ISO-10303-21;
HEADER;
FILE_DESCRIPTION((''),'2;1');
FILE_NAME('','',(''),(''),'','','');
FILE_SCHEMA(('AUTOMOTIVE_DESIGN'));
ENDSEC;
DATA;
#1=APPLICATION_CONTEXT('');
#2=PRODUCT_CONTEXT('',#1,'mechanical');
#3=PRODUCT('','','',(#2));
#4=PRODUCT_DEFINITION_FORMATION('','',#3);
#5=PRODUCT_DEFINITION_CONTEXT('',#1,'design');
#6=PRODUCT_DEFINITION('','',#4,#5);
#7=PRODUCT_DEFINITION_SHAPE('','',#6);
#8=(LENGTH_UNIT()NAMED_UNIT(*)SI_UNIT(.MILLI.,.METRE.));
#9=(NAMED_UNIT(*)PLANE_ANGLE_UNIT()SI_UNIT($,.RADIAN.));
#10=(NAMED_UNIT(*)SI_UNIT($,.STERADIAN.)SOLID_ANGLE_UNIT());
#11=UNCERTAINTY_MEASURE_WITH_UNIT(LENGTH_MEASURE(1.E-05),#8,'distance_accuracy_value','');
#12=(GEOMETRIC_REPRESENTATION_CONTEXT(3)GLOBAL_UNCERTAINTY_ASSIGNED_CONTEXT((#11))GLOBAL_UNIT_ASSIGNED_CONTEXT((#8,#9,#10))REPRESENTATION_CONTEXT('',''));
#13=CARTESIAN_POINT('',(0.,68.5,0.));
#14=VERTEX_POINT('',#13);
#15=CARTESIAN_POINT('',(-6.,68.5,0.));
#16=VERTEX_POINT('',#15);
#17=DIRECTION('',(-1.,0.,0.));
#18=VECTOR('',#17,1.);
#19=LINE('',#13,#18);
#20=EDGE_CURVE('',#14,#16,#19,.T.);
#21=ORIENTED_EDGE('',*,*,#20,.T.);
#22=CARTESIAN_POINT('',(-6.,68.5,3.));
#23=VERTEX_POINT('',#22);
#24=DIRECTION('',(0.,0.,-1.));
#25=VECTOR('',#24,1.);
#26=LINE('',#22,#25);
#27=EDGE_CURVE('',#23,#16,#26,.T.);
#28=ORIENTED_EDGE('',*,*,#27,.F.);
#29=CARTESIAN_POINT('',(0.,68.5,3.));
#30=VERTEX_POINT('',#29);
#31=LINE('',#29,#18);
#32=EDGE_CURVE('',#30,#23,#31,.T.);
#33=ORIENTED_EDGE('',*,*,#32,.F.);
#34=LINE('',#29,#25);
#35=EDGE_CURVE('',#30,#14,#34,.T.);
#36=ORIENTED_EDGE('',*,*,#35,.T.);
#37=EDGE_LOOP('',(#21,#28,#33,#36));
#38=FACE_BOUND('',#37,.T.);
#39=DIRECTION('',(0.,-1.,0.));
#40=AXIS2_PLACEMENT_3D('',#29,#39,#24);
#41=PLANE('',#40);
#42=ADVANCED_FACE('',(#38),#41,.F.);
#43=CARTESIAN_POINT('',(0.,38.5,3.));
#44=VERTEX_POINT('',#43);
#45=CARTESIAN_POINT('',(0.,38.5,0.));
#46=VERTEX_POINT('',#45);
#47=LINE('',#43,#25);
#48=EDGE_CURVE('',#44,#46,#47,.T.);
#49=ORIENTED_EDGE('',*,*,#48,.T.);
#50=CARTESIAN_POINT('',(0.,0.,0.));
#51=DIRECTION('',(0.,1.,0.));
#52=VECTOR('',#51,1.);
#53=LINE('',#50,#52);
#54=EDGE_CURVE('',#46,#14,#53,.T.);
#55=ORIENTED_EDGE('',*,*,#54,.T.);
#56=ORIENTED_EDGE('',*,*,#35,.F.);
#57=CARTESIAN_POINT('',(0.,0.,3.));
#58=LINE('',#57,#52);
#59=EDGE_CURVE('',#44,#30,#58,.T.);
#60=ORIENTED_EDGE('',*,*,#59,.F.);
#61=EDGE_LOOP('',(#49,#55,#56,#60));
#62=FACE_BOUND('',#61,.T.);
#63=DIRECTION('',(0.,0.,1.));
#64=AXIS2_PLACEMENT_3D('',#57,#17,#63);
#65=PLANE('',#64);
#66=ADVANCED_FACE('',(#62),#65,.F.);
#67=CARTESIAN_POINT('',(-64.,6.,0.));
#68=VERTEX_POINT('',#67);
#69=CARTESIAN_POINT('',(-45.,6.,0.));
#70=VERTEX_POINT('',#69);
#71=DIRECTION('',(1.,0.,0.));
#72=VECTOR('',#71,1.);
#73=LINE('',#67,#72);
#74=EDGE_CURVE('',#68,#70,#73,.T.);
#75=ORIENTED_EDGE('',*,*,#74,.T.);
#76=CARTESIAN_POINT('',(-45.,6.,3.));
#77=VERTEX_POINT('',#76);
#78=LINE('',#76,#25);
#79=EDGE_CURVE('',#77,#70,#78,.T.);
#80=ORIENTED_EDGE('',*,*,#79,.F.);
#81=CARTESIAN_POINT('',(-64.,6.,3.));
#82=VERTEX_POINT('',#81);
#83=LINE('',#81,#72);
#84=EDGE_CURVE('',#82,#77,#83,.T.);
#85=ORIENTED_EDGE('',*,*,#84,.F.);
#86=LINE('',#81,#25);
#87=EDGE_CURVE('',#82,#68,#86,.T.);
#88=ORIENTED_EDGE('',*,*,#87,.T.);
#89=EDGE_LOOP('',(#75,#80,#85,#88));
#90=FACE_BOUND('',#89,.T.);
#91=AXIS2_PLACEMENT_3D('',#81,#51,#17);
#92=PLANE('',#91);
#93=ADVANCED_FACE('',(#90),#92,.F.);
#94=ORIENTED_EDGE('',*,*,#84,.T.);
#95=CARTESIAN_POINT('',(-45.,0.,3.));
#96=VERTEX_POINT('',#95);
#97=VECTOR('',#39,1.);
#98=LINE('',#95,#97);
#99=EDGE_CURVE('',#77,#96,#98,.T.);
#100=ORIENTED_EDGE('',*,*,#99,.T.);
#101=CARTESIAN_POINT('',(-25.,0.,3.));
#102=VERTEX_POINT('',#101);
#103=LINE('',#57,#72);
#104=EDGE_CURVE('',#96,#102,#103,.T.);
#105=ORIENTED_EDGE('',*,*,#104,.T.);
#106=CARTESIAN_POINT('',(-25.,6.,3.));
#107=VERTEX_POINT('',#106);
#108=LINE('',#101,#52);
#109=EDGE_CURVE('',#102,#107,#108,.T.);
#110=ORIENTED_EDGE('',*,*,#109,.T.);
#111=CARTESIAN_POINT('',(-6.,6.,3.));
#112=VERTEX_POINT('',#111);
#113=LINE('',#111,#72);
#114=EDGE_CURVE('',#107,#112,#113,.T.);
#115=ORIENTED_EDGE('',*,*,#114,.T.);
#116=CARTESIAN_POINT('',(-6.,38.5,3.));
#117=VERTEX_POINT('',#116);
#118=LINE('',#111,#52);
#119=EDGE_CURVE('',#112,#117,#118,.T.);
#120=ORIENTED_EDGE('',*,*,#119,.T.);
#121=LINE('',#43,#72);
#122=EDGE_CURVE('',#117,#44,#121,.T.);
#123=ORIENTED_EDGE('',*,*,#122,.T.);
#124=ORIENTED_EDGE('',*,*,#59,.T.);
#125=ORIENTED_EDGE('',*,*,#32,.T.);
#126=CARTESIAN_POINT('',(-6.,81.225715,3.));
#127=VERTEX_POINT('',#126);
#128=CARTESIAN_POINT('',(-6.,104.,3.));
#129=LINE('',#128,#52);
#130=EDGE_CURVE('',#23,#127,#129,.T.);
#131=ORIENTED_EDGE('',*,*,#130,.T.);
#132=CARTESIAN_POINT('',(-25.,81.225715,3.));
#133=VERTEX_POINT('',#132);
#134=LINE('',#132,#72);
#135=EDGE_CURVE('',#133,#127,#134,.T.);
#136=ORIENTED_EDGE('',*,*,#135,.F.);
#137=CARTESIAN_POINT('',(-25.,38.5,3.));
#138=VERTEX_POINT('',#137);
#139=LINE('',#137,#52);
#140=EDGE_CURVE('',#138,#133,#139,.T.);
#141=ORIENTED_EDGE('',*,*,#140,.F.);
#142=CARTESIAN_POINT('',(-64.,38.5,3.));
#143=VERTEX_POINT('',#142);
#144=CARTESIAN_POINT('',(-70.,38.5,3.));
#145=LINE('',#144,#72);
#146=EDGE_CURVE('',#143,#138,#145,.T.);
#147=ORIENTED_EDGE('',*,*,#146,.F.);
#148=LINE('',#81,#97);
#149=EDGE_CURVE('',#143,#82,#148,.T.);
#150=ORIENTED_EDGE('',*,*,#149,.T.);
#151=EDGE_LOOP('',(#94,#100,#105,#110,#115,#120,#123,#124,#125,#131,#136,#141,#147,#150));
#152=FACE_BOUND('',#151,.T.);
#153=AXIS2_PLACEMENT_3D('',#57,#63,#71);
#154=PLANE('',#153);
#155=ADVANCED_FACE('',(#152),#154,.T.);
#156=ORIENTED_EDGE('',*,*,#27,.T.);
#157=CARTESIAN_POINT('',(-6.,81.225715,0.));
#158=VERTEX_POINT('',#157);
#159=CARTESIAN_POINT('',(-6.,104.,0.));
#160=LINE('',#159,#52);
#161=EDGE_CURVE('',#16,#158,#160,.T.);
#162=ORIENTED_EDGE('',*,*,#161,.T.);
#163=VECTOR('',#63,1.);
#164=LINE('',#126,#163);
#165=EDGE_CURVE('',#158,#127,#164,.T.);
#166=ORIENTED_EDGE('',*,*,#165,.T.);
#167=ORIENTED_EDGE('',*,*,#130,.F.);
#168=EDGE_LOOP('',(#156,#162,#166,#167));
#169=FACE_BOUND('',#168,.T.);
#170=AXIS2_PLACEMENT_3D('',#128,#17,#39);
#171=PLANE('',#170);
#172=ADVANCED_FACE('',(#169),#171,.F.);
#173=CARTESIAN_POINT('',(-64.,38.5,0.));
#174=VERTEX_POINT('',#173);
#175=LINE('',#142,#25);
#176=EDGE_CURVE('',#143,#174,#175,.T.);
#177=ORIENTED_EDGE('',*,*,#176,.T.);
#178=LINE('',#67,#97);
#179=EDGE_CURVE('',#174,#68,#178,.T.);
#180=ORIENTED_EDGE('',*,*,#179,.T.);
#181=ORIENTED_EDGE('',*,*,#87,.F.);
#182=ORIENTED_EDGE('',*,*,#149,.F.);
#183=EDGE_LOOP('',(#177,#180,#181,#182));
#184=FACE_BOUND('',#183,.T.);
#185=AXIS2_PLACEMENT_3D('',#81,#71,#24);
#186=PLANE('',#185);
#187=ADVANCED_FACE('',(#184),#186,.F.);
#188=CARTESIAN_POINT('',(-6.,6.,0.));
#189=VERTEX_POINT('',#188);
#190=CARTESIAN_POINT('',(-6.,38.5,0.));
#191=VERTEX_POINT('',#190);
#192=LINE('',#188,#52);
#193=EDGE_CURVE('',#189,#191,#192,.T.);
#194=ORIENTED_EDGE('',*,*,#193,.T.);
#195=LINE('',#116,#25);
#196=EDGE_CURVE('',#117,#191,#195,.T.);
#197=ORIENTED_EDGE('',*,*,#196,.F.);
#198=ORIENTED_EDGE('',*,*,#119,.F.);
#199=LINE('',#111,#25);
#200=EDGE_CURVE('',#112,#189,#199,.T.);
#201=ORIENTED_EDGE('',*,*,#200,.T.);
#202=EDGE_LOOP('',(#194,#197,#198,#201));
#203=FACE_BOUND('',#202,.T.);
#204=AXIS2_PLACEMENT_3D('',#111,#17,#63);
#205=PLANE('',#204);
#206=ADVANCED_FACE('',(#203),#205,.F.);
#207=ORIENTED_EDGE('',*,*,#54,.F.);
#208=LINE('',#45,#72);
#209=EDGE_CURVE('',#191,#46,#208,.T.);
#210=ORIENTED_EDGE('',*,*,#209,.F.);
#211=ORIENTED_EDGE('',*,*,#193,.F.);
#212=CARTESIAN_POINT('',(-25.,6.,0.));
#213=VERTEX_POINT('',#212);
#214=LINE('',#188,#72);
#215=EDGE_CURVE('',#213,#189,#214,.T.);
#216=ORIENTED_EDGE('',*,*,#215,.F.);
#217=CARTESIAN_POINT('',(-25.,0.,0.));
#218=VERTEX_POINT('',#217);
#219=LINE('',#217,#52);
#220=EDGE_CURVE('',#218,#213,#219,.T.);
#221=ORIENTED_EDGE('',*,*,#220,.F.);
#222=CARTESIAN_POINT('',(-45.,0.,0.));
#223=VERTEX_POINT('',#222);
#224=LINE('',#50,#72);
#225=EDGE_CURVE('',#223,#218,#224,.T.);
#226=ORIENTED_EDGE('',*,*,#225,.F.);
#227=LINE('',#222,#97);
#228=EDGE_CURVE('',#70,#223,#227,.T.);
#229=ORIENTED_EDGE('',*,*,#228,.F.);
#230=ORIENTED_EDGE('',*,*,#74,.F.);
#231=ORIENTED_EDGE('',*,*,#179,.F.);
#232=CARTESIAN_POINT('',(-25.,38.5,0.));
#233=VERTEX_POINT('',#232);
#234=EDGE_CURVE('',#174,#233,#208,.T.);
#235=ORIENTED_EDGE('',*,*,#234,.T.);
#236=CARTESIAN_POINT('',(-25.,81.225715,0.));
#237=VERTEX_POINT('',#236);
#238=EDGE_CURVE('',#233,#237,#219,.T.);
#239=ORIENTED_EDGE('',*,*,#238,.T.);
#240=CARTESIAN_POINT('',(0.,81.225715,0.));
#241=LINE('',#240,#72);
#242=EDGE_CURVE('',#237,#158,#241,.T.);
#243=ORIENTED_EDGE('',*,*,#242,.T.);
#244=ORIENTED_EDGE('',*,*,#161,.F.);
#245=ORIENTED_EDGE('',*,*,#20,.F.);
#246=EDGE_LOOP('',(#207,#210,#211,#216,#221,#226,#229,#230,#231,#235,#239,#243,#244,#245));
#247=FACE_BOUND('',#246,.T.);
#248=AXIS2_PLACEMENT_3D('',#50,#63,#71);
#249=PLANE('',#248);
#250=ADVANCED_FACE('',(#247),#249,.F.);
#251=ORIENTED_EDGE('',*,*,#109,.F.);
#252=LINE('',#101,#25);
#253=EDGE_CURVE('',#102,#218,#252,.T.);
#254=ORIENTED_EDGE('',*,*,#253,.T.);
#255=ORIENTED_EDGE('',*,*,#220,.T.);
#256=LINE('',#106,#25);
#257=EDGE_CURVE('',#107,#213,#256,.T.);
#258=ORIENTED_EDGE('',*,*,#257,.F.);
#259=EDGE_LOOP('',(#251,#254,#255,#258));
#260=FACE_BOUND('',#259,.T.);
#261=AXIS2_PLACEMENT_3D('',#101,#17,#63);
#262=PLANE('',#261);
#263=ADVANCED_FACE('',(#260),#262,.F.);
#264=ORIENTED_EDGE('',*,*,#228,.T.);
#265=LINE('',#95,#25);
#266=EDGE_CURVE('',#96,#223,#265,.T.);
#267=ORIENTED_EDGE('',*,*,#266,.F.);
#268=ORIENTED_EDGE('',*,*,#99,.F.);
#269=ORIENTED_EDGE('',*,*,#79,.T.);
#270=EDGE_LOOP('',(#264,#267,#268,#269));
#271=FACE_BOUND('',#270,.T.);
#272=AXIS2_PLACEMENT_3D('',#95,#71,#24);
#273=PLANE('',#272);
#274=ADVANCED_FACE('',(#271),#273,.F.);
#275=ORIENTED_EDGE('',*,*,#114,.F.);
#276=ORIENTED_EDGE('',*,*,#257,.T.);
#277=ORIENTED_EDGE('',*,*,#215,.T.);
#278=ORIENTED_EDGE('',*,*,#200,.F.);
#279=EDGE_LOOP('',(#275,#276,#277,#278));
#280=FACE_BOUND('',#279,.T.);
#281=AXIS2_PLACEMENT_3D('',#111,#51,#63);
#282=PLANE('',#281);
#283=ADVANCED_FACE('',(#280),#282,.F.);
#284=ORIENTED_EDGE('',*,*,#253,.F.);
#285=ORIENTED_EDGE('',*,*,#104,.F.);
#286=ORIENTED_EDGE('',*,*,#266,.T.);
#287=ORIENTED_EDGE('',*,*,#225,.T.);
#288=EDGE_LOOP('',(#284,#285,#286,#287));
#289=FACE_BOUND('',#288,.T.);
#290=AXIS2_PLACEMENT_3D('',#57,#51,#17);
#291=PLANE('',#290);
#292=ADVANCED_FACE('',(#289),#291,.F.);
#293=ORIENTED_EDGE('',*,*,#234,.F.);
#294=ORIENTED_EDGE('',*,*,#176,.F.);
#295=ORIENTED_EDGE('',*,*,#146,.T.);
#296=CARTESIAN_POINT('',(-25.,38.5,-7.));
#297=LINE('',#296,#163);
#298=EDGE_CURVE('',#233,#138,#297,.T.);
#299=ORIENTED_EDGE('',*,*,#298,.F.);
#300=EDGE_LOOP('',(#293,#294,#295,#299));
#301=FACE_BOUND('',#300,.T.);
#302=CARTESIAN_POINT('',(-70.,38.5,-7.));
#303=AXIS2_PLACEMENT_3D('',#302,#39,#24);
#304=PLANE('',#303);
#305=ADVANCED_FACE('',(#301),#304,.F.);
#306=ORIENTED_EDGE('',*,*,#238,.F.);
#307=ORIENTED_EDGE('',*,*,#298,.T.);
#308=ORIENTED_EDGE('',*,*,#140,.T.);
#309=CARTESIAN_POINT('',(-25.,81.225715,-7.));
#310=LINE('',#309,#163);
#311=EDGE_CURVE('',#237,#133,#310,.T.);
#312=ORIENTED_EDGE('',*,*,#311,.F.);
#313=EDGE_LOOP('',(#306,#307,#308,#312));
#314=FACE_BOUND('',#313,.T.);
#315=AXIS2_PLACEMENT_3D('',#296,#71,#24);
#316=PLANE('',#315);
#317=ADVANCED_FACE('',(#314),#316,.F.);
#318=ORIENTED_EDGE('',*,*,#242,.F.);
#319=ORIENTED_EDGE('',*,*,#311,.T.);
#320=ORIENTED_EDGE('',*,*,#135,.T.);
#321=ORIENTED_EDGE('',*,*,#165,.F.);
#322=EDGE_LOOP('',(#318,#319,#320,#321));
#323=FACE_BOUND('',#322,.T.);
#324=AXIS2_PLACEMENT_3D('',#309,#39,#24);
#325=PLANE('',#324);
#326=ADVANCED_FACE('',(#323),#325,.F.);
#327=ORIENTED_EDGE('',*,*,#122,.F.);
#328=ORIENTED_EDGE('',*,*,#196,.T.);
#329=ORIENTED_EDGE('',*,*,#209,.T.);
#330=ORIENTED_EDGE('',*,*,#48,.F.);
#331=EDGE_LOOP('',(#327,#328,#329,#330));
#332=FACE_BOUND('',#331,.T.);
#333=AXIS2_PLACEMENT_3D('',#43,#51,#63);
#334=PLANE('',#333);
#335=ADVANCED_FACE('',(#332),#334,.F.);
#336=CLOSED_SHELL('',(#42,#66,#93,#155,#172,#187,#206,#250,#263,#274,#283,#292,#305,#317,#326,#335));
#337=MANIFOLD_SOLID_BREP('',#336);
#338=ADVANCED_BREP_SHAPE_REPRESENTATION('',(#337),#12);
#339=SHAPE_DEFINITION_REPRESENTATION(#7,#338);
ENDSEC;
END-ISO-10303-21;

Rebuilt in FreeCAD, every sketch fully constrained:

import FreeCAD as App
import Part
import Sketcher

V = App.Vector
Q = App.Units.Quantity

doc = App.newDocument("Part")
body = doc.addObject("PartDesign::Body", "Body")

# Sketch on XY plane
sketch1 = body.newObject("Sketcher::SketchObject", "Sketch")
sketch1.AttachmentSupport = (doc.getObject("XY_Plane"), [""])
sketch1.MapMode = "FlatFace"
sketch1.addGeometry(Part.LineSegment(V(-70, 110, 0), V(-70, 0, 0)), False)
sketch1.addGeometry(Part.LineSegment(V(-70, 0, 0), V(0, 0, 0)), False)
sketch1.addGeometry(Part.LineSegment(V(0, 0, 0), V(0, 110, 0)), False)
sketch1.addGeometry(Part.LineSegment(V(0, 110, 0), V(-70, 110, 0)), False)
sketch1.addConstraint(Sketcher.Constraint("Coincident", 0, 2, 1, 1))
sketch1.addConstraint(Sketcher.Constraint("Coincident", 1, 2, 2, 1))
sketch1.addConstraint(Sketcher.Constraint("Coincident", 2, 2, 3, 1))
sketch1.addConstraint(Sketcher.Constraint("Coincident", 3, 2, 0, 1))
sketch1.addConstraint(Sketcher.Constraint("Vertical", 0))
sketch1.addConstraint(Sketcher.Constraint("Horizontal", 1))
sketch1.addConstraint(Sketcher.Constraint("Vertical", 2))
sketch1.addConstraint(Sketcher.Constraint("Horizontal", 3))
sketch1.addConstraint(Sketcher.Constraint("Coincident", 1, 2, -1, 1))
sketch1.addConstraint(Sketcher.Constraint("DistanceX", 1, 1, 1, 2, Q("70 mm")))
sketch1.addConstraint(Sketcher.Constraint("DistanceY", 0, 2, 0, 1, Q("110 mm")))
pad1 = body.newObject("PartDesign::Pad", "Pad")
pad1.Profile = sketch1
pad1.Length = 3

# Sketch on XY plane
sketch2 = body.newObject("Sketcher::SketchObject", "Sketch001")
sketch2.AttachmentSupport = (doc.getObject("XY_Plane"), [""])
sketch2.MapMode = "FlatFace"
sketch2.addGeometry(Part.LineSegment(V(-25, 110, 0), V(0, 110, 0)), False)
sketch2.addGeometry(Part.LineSegment(V(0, 110, 0), V(0, 68, 0)), False)
sketch2.addGeometry(Part.LineSegment(V(0, 68, 0), V(-6, 68, 0)), False)
sketch2.addGeometry(Part.LineSegment(V(-6, 68, 0), V(-6, 104, 0)), False)
sketch2.addGeometry(Part.LineSegment(V(-6, 104, 0), V(-25, 104, 0)), False)
sketch2.addGeometry(Part.LineSegment(V(-25, 104, 0), V(-25, 110, 0)), False)
sketch2.addGeometry(Part.LineSegment(V(-70, 110, 0), V(-45, 110, 0)), False)
sketch2.addGeometry(Part.LineSegment(V(-45, 110, 0), V(-45, 104, 0)), False)
sketch2.addGeometry(Part.LineSegment(V(-45, 104, 0), V(-64, 104, 0)), False)
sketch2.addGeometry(Part.LineSegment(V(-64, 104, 0), V(-64, 68, 0)), False)
sketch2.addGeometry(Part.LineSegment(V(-64, 68, 0), V(-70, 68, 0)), False)
sketch2.addGeometry(Part.LineSegment(V(-70, 68, 0), V(-70, 110, 0)), False)
sketch2.addGeometry(Part.LineSegment(V(0, 0, 0), V(-25, 0, 0)), False)
sketch2.addGeometry(Part.LineSegment(V(-25, 0, 0), V(-25, 6, 0)), False)
sketch2.addGeometry(Part.LineSegment(V(-25, 6, 0), V(-6, 6, 0)), False)
sketch2.addGeometry(Part.LineSegment(V(-6, 6, 0), V(-6, 38, 0)), False)
sketch2.addGeometry(Part.LineSegment(V(-6, 38, 0), V(0, 38, 0)), False)
sketch2.addGeometry(Part.LineSegment(V(0, 38, 0), V(0, 0, 0)), False)
sketch2.addGeometry(Part.LineSegment(V(-45, 0, 0), V(-70, 0, 0)), False)
sketch2.addGeometry(Part.LineSegment(V(-70, 0, 0), V(-70, 38, 0)), False)
sketch2.addGeometry(Part.LineSegment(V(-70, 38, 0), V(-64, 38, 0)), False)
sketch2.addGeometry(Part.LineSegment(V(-64, 38, 0), V(-64, 6, 0)), False)
sketch2.addGeometry(Part.LineSegment(V(-64, 6, 0), V(-45, 6, 0)), False)
sketch2.addGeometry(Part.LineSegment(V(-45, 6, 0), V(-45, 0, 0)), False)
sketch2.addConstraint(Sketcher.Constraint("Coincident", 0, 2, 1, 1))
sketch2.addConstraint(Sketcher.Constraint("Coincident", 1, 2, 2, 1))
sketch2.addConstraint(Sketcher.Constraint("Coincident", 2, 2, 3, 1))
sketch2.addConstraint(Sketcher.Constraint("Coincident", 3, 2, 4, 1))
sketch2.addConstraint(Sketcher.Constraint("Coincident", 4, 2, 5, 1))
sketch2.addConstraint(Sketcher.Constraint("Coincident", 5, 2, 0, 1))
sketch2.addConstraint(Sketcher.Constraint("Coincident", 6, 2, 7, 1))
sketch2.addConstraint(Sketcher.Constraint("Coincident", 7, 2, 8, 1))
sketch2.addConstraint(Sketcher.Constraint("Coincident", 8, 2, 9, 1))
sketch2.addConstraint(Sketcher.Constraint("Coincident", 9, 2, 10, 1))
sketch2.addConstraint(Sketcher.Constraint("Coincident", 10, 2, 11, 1))
sketch2.addConstraint(Sketcher.Constraint("Coincident", 11, 2, 6, 1))
sketch2.addConstraint(Sketcher.Constraint("Coincident", 12, 2, 13, 1))
sketch2.addConstraint(Sketcher.Constraint("Coincident", 13, 2, 14, 1))
sketch2.addConstraint(Sketcher.Constraint("Coincident", 14, 2, 15, 1))
sketch2.addConstraint(Sketcher.Constraint("Coincident", 15, 2, 16, 1))
sketch2.addConstraint(Sketcher.Constraint("Coincident", 16, 2, 17, 1))
sketch2.addConstraint(Sketcher.Constraint("Coincident", 17, 2, 12, 1))
sketch2.addConstraint(Sketcher.Constraint("Coincident", 18, 2, 19, 1))
sketch2.addConstraint(Sketcher.Constraint("Coincident", 19, 2, 20, 1))
sketch2.addConstraint(Sketcher.Constraint("Coincident", 20, 2, 21, 1))
sketch2.addConstraint(Sketcher.Constraint("Coincident", 21, 2, 22, 1))
sketch2.addConstraint(Sketcher.Constraint("Coincident", 22, 2, 23, 1))
sketch2.addConstraint(Sketcher.Constraint("Coincident", 23, 2, 18, 1))
sketch2.addConstraint(Sketcher.Constraint("Horizontal", 0))
sketch2.addConstraint(Sketcher.Constraint("Vertical", 1))
sketch2.addConstraint(Sketcher.Constraint("Horizontal", 2))
sketch2.addConstraint(Sketcher.Constraint("Vertical", 3))
sketch2.addConstraint(Sketcher.Constraint("Horizontal", 4))
sketch2.addConstraint(Sketcher.Constraint("Vertical", 5))
sketch2.addConstraint(Sketcher.Constraint("Horizontal", 6))
sketch2.addConstraint(Sketcher.Constraint("Vertical", 7))
sketch2.addConstraint(Sketcher.Constraint("Horizontal", 8))
sketch2.addConstraint(Sketcher.Constraint("Vertical", 9))
sketch2.addConstraint(Sketcher.Constraint("Horizontal", 10))
sketch2.addConstraint(Sketcher.Constraint("Vertical", 11))
sketch2.addConstraint(Sketcher.Constraint("Horizontal", 12))
sketch2.addConstraint(Sketcher.Constraint("Vertical", 13))
sketch2.addConstraint(Sketcher.Constraint("Horizontal", 14))
sketch2.addConstraint(Sketcher.Constraint("Vertical", 15))
sketch2.addConstraint(Sketcher.Constraint("Horizontal", 16))
sketch2.addConstraint(Sketcher.Constraint("Vertical", 17))
sketch2.addConstraint(Sketcher.Constraint("Horizontal", 18))
sketch2.addConstraint(Sketcher.Constraint("Vertical", 19))
sketch2.addConstraint(Sketcher.Constraint("Horizontal", 20))
sketch2.addConstraint(Sketcher.Constraint("Vertical", 21))
sketch2.addConstraint(Sketcher.Constraint("Horizontal", 22))
sketch2.addConstraint(Sketcher.Constraint("Vertical", 23))
sketch2.addConstraint(Sketcher.Constraint("Coincident", 17, 2, -1, 1))
sketch2.addConstraint(Sketcher.Constraint("PointOnObject", 0, 2, -2))
sketch2.addConstraint(Sketcher.Constraint("PointOnObject", 18, 2, -1))
sketch2.addConstraint(Sketcher.Constraint("Horizontal", 5, 2, 6, 2))
sketch2.addConstraint(Sketcher.Constraint("Horizontal", 4, 2, 7, 2))
sketch2.addConstraint(Sketcher.Constraint("Horizontal", 2, 2, 9, 2))
sketch2.addConstraint(Sketcher.Constraint("Horizontal", 16, 2, 19, 2))
sketch2.addConstraint(Sketcher.Constraint("Horizontal", 14, 2, 21, 2))
sketch2.addConstraint(Sketcher.Constraint("Vertical", 5, 2, 12, 2))
sketch2.addConstraint(Sketcher.Constraint("Vertical", 3, 2, 14, 2))
sketch2.addConstraint(Sketcher.Constraint("Vertical", 11, 2, 18, 2))
sketch2.addConstraint(Sketcher.Constraint("Vertical", 9, 2, 20, 2))
sketch2.addConstraint(Sketcher.Constraint("Vertical", 7, 2, 22, 2))
sketch2.addConstraint(Sketcher.Constraint("Equal", 0, 6))
sketch2.addConstraint(Sketcher.Constraint("Equal", 4, 8))
sketch2.addConstraint(Sketcher.Constraint("Equal", 20, 5))
sketch2.addConstraint(Sketcher.Constraint("Equal", 7, 13))
sketch2.addConstraint(Sketcher.Constraint("DistanceX", 0, 1, 0, 2, Q("25 mm")))
sketch2.addConstraint(Sketcher.Constraint("DistanceX", 2, 2, 2, 1, Q("6 mm")))
sketch2.addConstraint(Sketcher.Constraint("DistanceY", 1, 2, 1, 1, Q("41.5 mm")))
sketch2.addConstraint(Sketcher.Constraint("DistanceY", 15, 1, 15, 2, Q("32.5 mm")))
sketch2.addConstraint(Sketcher.Constraint("DistanceY", -1, 1, 0, 2, Q("110 mm")))
sketch2.addConstraint(Sketcher.Constraint("DistanceX", 6, 2, -1, 1, Q("45 mm")))
pocket1 = body.newObject("PartDesign::Pocket", "Pocket")
pocket1.Profile = sketch2
pocket1.Type = "ThroughAll"
pocket1.Reversed = True

# Sketch on XY plane
sketch3 = body.newObject("Sketcher::SketchObject", "Sketch002")
sketch3.AttachmentSupport = (doc.getObject("XY_Plane"), [""])
sketch3.MapMode = "FlatFace"
sketch3.AttachmentOffset = App.Placement(V(0, 0, 3), App.Rotation())
sketch3.addGeometry(Part.LineSegment(V(-70, 38, 0), V(-25, 38, 0)), False)
sketch3.addGeometry(Part.LineSegment(V(-25, 38, 0), V(-25, 81, 0)), False)
sketch3.addGeometry(Part.LineSegment(V(-25, 81, 0), V(-2, 81, 0)), False)
sketch3.addGeometry(Part.LineSegment(V(-2, 81, 0), V(-2, 110, 0)), False)
sketch3.addGeometry(Part.LineSegment(V(-2, 110, 0), V(-70, 110, 0)), False)
sketch3.addGeometry(Part.LineSegment(V(-70, 110, 0), V(-70, 38, 0)), False)
sketch3.addConstraint(Sketcher.Constraint("Coincident", 0, 2, 1, 1))
sketch3.addConstraint(Sketcher.Constraint("Coincident", 1, 2, 2, 1))
sketch3.addConstraint(Sketcher.Constraint("Coincident", 2, 2, 3, 1))
sketch3.addConstraint(Sketcher.Constraint("Coincident", 3, 2, 4, 1))
sketch3.addConstraint(Sketcher.Constraint("Coincident", 4, 2, 5, 1))
sketch3.addConstraint(Sketcher.Constraint("Coincident", 5, 2, 0, 1))
sketch3.addConstraint(Sketcher.Constraint("Horizontal", 0))
sketch3.addConstraint(Sketcher.Constraint("Vertical", 1))
sketch3.addConstraint(Sketcher.Constraint("Horizontal", 2))
sketch3.addConstraint(Sketcher.Constraint("Vertical", 3))
sketch3.addConstraint(Sketcher.Constraint("Horizontal", 4))
sketch3.addConstraint(Sketcher.Constraint("Vertical", 5))
sketch3.addConstraint(Sketcher.Constraint("DistanceX", 0, 1, 0, 2, Q("45 mm")))
sketch3.addConstraint(Sketcher.Constraint("DistanceY", 5, 2, 5, 1, Q("71.5 mm")))
sketch3.addConstraint(Sketcher.Constraint("DistanceX", 0, 2, -1, 1, Q("25 mm")))
sketch3.addConstraint(Sketcher.Constraint("DistanceY", -1, 1, 3, 2, Q("110 mm")))
sketch3.addConstraint(Sketcher.Constraint("DistanceX", 2, 1, 2, 2, Q("22.764084 mm")))
sketch3.addConstraint(Sketcher.Constraint("DistanceY", 1, 1, 1, 2, Q("42.725715 mm")))
pocket2 = body.newObject("PartDesign::Pocket", "Pocket001")
pocket2.Profile = sketch3
pocket2.Length = 10

doc.recompute()
